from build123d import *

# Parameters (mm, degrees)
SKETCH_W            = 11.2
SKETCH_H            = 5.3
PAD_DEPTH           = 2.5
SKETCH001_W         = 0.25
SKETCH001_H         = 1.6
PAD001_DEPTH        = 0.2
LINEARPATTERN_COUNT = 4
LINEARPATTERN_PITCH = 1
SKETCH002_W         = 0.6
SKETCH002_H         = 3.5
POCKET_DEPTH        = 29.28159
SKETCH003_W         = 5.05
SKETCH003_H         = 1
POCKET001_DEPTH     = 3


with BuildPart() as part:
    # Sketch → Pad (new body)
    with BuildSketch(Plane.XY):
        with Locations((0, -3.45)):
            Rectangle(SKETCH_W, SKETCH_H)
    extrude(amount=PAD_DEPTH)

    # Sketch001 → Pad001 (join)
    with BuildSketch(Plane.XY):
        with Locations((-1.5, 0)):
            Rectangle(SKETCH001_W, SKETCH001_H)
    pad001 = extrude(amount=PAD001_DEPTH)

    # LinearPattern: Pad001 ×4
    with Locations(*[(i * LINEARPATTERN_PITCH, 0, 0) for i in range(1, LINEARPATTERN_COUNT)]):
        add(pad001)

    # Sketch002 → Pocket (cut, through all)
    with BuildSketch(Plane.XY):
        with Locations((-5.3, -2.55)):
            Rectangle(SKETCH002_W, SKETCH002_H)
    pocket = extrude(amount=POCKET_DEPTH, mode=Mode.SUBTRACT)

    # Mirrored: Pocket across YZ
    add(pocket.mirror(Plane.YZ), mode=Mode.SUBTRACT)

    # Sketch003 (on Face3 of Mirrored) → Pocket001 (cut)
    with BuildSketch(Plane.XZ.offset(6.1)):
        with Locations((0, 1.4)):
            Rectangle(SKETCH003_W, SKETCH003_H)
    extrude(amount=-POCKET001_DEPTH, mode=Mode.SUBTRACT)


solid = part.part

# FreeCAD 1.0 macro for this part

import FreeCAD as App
import Part
import Sketcher
from FreeCAD import Vector
Q = App.Units.Quantity


def add_polygon(sketch, points):
    """Adds a closed chain of lines whose ends are joined by coincident constraints."""
    first, n = sketch.GeometryCount, len(points)
    for a, b in zip(points, points[1:] + points[:1]):
        sketch.addGeometry(Part.LineSegment(App.Vector(*a, 0), App.Vector(*b, 0)), False)
    for i in range(n):
        sketch.addConstraint(Sketcher.Constraint("Coincident", first + i, 2, first + (i + 1) % n, 1))

doc = App.newDocument("Part")
body = doc.addObject("PartDesign::Body", "Body")

sketch1 = body.newObject("Sketcher::SketchObject", "Sketch")
sketch1.AttachmentSupport = (doc.getObject("XY_Plane"), [""])
sketch1.MapMode = "FlatFace"
add_polygon(sketch1, [(-6, -1), (-6, -6), (6, -6), (6, -1)])
sketch1.addConstraint([
    Sketcher.Constraint("Vertical", 0),
    Sketcher.Constraint("Horizontal", 1),
    Sketcher.Constraint("Vertical", 2),
    Sketcher.Constraint("Horizontal", 3),
    Sketcher.Constraint("DistanceX", 1, 1, 1, 2, Q("11.2 mm")),
    Sketcher.Constraint("DistanceY", 0, 2, 0, 1, Q("5.3 mm")),
    Sketcher.Constraint("DistanceX", 0, 2, -1, 1, Q("5.6 mm")),
    Sketcher.Constraint("DistanceY", 0, 2, -1, 1, Q("6.1 mm")),
])
pad1 = body.newObject("PartDesign::Pad", "Pad")
pad1.Profile = sketch1
pad1.Length = 2.5

sketch2 = body.newObject("Sketcher::SketchObject", "Sketch001")
sketch2.AttachmentSupport = (doc.getObject("XY_Plane"), [""])
sketch2.MapMode = "FlatFace"
add_polygon(sketch2, [(-1.62, 0.8), (-1.62, -0.8), (-1.38, -0.8), (-1.38, 0.8)])
sketch2.addConstraint([
    Sketcher.Constraint("Vertical", 0),
    Sketcher.Constraint("Horizontal", 1),
    Sketcher.Constraint("Vertical", 2),
    Sketcher.Constraint("Horizontal", 3),
    Sketcher.Constraint("DistanceY", 0, 2, 0, 1, Q("1.6 mm")),
    Sketcher.Constraint("DistanceX", 1, 1, 1, 2, Q("0.25 mm")),
    Sketcher.Constraint("DistanceY", 0, 2, -1, 1, Q("0.8 mm")),
    Sketcher.Constraint("DistanceX", 0, 2, -1, 1, Q("1.625 mm")),
])
pad2 = body.newObject("PartDesign::Pad", "Pad001")
pad2.Profile = sketch2
pad2.Length = 0.2
doc.recompute()

linearpattern = body.newObject("PartDesign::LinearPattern", "LinearPattern")
linearpattern.Originals = [pad2]
linearpattern.Direction = (doc.getObject("X_Axis"), [""])
linearpattern.Mode = "offset"
linearpattern.Offset = 1
linearpattern.Occurrences = 4
body.Tip = linearpattern

sketch3 = body.newObject("Sketcher::SketchObject", "Sketch002")
sketch3.AttachmentSupport = (doc.getObject("XY_Plane"), [""])
sketch3.MapMode = "FlatFace"
add_polygon(sketch3, [(-5.6, -0.8), (-5.6, -4.3), (-5, -4.3), (-5, -0.8)])
sketch3.addConstraint([
    Sketcher.Constraint("Vertical", 0),
    Sketcher.Constraint("Horizontal", 1),
    Sketcher.Constraint("Vertical", 2),
    Sketcher.Constraint("Horizontal", 3),
    Sketcher.Constraint("DistanceX", 1, 1, 1, 2, Q("0.6 mm")),
    Sketcher.Constraint("DistanceY", 0, 2, 0, 1, Q("3.5 mm")),
    Sketcher.Constraint("DistanceX", 1, 2, -1, 1, Q("5 mm")),
    Sketcher.Constraint("DistanceY", 0, 2, -1, 1, Q("4.3 mm")),
])
pocket1 = body.newObject("PartDesign::Pocket", "Pocket")
pocket1.Profile = sketch3
pocket1.Type = "ThroughAll"
pocket1.Reversed = True
doc.recompute()

mirrored = body.newObject("PartDesign::Mirrored", "Mirrored")
mirrored.Originals = [pocket1]
mirrored.MirrorPlane = (doc.getObject("YZ_Plane"), [""])
body.Tip = mirrored

sketch4 = body.newObject("Sketcher::SketchObject", "Sketch003")
sketch4.AttachmentSupport = (doc.getObject("XZ_Plane"), [""])
sketch4.MapMode = "FlatFace"
sketch4.AttachmentOffset = App.Placement(Vector(0, 0, 6.1), App.Rotation())
add_polygon(sketch4, [(-2.5, 1.9), (-2.5, 0.9), (2.5, 0.9), (2.5, 1.9)])
sketch4.addConstraint([
    Sketcher.Constraint("Vertical", 0),
    Sketcher.Constraint("Horizontal", 1),
    Sketcher.Constraint("Vertical", 2),
    Sketcher.Constraint("Horizontal", 3),
    Sketcher.Constraint("DistanceY", 0, 2, 0, 1, Q("1 mm")),
    Sketcher.Constraint("DistanceX", 1, 1, 1, 2, Q("5.05 mm")),
    Sketcher.Constraint("DistanceY", -1, 1, 0, 2, Q("0.9 mm")),
    Sketcher.Constraint("DistanceX", 0, 2, -1, 1, Q("2.525 mm")),
])
pocket2 = body.newObject("PartDesign::Pocket", "Pocket001")
pocket2.Profile = sketch4
pocket2.Length = 3

doc.recompute()
